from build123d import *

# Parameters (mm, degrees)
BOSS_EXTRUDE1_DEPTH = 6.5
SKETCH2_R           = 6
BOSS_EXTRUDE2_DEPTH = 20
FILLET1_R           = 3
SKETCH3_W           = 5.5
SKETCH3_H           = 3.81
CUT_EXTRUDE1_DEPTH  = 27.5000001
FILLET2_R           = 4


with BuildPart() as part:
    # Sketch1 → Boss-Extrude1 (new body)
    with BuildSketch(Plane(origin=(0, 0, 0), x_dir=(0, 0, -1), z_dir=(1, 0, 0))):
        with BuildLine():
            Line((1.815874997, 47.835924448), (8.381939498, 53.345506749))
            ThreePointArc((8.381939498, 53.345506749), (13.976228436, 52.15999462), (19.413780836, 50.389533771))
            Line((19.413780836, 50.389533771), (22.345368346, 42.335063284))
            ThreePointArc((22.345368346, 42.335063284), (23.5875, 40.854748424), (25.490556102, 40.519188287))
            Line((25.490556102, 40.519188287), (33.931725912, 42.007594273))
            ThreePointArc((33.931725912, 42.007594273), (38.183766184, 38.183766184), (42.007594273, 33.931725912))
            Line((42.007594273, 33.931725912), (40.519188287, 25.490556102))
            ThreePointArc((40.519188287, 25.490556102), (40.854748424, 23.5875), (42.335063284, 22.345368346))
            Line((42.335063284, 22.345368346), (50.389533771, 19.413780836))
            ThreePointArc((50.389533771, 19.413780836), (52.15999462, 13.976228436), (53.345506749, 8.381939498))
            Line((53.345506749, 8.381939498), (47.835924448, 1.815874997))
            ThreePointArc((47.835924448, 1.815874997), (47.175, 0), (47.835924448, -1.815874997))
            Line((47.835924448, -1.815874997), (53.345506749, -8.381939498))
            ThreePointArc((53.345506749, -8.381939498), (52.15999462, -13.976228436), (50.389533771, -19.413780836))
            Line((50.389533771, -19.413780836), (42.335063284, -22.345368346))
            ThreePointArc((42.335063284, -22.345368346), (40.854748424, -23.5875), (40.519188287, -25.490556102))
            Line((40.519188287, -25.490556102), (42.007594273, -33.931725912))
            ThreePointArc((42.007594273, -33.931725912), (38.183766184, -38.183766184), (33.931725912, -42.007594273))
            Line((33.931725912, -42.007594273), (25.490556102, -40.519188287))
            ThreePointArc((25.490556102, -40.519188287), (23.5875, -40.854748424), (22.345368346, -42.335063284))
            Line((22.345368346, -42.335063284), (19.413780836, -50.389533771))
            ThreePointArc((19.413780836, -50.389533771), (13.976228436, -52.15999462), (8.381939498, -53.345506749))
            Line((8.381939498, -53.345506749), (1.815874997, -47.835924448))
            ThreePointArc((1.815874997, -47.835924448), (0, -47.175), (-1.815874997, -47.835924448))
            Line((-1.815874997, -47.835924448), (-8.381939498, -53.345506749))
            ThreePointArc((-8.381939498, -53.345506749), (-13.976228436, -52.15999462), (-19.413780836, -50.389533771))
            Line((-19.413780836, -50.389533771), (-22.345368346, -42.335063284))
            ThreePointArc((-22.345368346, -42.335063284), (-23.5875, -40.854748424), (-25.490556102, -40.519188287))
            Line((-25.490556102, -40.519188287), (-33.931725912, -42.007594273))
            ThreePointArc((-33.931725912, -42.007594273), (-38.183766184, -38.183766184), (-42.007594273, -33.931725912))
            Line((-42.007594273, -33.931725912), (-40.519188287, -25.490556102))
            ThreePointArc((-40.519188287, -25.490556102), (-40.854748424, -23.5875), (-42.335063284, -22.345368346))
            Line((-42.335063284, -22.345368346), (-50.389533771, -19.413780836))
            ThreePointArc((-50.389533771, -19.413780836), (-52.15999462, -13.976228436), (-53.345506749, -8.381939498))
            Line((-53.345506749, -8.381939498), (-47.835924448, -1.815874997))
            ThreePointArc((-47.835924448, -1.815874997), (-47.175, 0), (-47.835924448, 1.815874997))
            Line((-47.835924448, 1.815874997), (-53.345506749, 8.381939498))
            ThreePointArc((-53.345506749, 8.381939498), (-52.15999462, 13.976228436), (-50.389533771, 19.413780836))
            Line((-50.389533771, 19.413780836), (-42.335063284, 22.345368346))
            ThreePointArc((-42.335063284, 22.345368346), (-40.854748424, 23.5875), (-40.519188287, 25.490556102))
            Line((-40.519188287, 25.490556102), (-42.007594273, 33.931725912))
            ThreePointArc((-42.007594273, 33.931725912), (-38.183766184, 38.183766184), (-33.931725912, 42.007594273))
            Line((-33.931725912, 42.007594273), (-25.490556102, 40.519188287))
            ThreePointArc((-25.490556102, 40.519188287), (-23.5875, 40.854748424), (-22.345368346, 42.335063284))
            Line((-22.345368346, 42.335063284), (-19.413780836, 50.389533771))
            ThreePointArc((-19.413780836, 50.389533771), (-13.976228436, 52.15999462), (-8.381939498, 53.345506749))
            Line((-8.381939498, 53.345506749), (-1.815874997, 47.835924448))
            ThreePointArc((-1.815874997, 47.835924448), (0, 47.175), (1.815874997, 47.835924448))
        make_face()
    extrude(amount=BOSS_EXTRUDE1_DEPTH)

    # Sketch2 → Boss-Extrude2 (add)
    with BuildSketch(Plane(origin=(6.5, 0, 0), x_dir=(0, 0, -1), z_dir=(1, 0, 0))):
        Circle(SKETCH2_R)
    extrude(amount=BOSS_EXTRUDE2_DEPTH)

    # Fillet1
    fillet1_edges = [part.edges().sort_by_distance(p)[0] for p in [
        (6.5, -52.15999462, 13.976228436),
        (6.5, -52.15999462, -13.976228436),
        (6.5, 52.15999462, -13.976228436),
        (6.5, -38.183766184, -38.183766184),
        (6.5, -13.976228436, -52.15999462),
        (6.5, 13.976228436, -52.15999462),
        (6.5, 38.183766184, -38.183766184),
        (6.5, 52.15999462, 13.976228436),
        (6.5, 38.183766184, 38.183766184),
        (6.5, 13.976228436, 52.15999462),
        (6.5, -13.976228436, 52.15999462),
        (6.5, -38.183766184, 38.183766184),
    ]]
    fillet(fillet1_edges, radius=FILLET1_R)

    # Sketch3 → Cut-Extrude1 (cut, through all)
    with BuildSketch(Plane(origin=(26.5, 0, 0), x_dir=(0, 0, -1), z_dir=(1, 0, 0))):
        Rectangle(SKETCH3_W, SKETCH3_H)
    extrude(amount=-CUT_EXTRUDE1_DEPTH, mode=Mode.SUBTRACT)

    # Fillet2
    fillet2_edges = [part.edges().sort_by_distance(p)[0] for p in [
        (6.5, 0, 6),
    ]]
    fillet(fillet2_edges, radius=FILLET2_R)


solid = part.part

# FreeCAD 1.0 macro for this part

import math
import FreeCAD as App
import Part
import Sketcher
from FreeCAD import Vector
Q = App.Units.Quantity


def edges_at(feature, points):
    """Names of the edges that pass closest to the given points."""
    edges = feature.Shape.Edges
    near = lambda p: min(range(len(edges)), key=lambda i: edges[i].distToShape(Part.Vertex(*p))[0])
    return sorted({f"Edge{near(p) + 1}" for p in points})


def add_polygon(sketch, points):
    """Adds a closed chain of lines whose ends are joined by coincident constraints."""
    first, n = sketch.GeometryCount, len(points)
    for a, b in zip(points, points[1:] + points[:1]):
        sketch.addGeometry(Part.LineSegment(App.Vector(*a, 0), App.Vector(*b, 0)), False)
    for i in range(n):
        sketch.addConstraint(Sketcher.Constraint("Coincident", first + i, 2, first + (i + 1) % n, 1))

doc = App.newDocument("Part")
body = doc.addObject("PartDesign::Body", "Body")

sketch1 = body.newObject("Sketcher::SketchObject", "Sketch")
sketch1.AttachmentSupport = (doc.getObject("YZ_Plane"), [""])
sketch1.MapMode = "FlatFace"
sketch1.addGeometry([
    Part.LineSegment(Vector(53.3, -8.4, 0), Vector(47.8, -1.8, 0)),
    Part.ArcOfCircle(Part.Circle(Vector(50, 0, 0), Vector(0, 0, 1), 2.8), math.radians(140), math.radians(220)),
    Part.LineSegment(Vector(47.8, 1.8, 0), Vector(53.3, 8.4, 0)),
    Part.ArcOfCircle(Part.Circle(Vector(0, 0, 0), Vector(0, 0, 1), 54), math.radians(8.93), math.radians(21.07)),
    Part.LineSegment(Vector(50.4, 19.4, 0), Vector(42.3, 22.3, 0)),
    Part.ArcOfCircle(Part.Circle(Vector(43.3, 25, 0), Vector(0, 0, 1), 2.8), math.radians(170), math.radians(250)),
    Part.LineSegment(Vector(40.5, 25.5, 0), Vector(42, 33.9, 0)),
    Part.ArcOfCircle(Part.Circle(Vector(0, 0, 0), Vector(0, 0, 1), 54), math.radians(38.93), math.radians(51.07)),
    Part.LineSegment(Vector(33.9, 42, 0), Vector(25.5, 40.5, 0)),
    Part.ArcOfCircle(Part.Circle(Vector(25, 43.3, 0), Vector(0, 0, 1), 2.8), math.radians(-160), math.radians(-80)),
    Part.LineSegment(Vector(22.3, 42.3, 0), Vector(19.4, 50.4, 0)),
    Part.ArcOfCircle(Part.Circle(Vector(0, 0, 0), Vector(0, 0, 1), 54), math.radians(68.93), math.radians(81.07)),
    Part.LineSegment(Vector(8.4, 53.3, 0), Vector(1.8, 47.8, 0)),
    Part.ArcOfCircle(Part.Circle(Vector(0, 50, 0), Vector(0, 0, 1), 2.8), math.radians(-130), math.radians(-50)),
    Part.LineSegment(Vector(-1.8, 47.8, 0), Vector(-8.4, 53.3, 0)),
    Part.ArcOfCircle(Part.Circle(Vector(0, 0, 0), Vector(0, 0, 1), 54), math.radians(98.93), math.radians(111.07)),
    Part.LineSegment(Vector(-19.4, 50.4, 0), Vector(-22.3, 42.3, 0)),
    Part.ArcOfCircle(Part.Circle(Vector(-25, 43.3, 0), Vector(0, 0, 1), 2.8), math.radians(-100), math.radians(-20)),
    Part.LineSegment(Vector(-25.5, 40.5, 0), Vector(-33.9, 42, 0)),
    Part.ArcOfCircle(Part.Circle(Vector(0, 0, 0), Vector(0, 0, 1), 54), math.radians(128.93), math.radians(141.07)),
    Part.LineSegment(Vector(-42, 33.9, 0), Vector(-40.5, 25.5, 0)),
    Part.ArcOfCircle(Part.Circle(Vector(-43.3, 25, 0), Vector(0, 0, 1), 2.8), math.radians(-70), math.radians(10)),
    Part.LineSegment(Vector(-42.3, 22.3, 0), Vector(-50.4, 19.4, 0)),
    Part.ArcOfCircle(Part.Circle(Vector(0, 0, 0), Vector(0, 0, 1), 54), math.radians(158.93), math.radians(171.07)),
    Part.LineSegment(Vector(-53.3, 8.4, 0), Vector(-47.8, 1.8, 0)),
    Part.ArcOfCircle(Part.Circle(Vector(-50, 0, 0), Vector(0, 0, 1), 2.8), math.radians(-40), math.radians(40)),
    Part.LineSegment(Vector(-47.8, -1.8, 0), Vector(-53.3, -8.4, 0)),
    Part.ArcOfCircle(Part.Circle(Vector(0, 0, 0), Vector(0, 0, 1), 54), math.radians(-171.07), math.radians(-158.93)),
    Part.LineSegment(Vector(-50.4, -19.4, 0), Vector(-42.3, -22.3, 0)),
    Part.ArcOfCircle(Part.Circle(Vector(-43.3, -25, 0), Vector(0, 0, 1), 2.8), math.radians(-10), math.radians(70)),
    Part.LineSegment(Vector(-40.5, -25.5, 0), Vector(-42, -33.9, 0)),
    Part.ArcOfCircle(Part.Circle(Vector(0, 0, 0), Vector(0, 0, 1), 54), math.radians(-141.07), math.radians(-128.93)),
    Part.LineSegment(Vector(-33.9, -42, 0), Vector(-25.5, -40.5, 0)),
    Part.ArcOfCircle(Part.Circle(Vector(-25, -43.3, 0), Vector(0, 0, 1), 2.8), math.radians(20), math.radians(100)),
    Part.LineSegment(Vector(-22.3, -42.3, 0), Vector(-19.4, -50.4, 0)),
    Part.ArcOfCircle(Part.Circle(Vector(0, 0, 0), Vector(0, 0, 1), 54), math.radians(-111.07), math.radians(-98.93)),
    Part.LineSegment(Vector(-8.4, -53.3, 0), Vector(-1.8, -47.8, 0)),
    Part.ArcOfCircle(Part.Circle(Vector(0, -50, 0), Vector(0, 0, 1), 2.8), math.radians(50), math.radians(130)),
    Part.LineSegment(Vector(1.8, -47.8, 0), Vector(8.4, -53.3, 0)),
    Part.ArcOfCircle(Part.Circle(Vector(0, 0, 0), Vector(0, 0, 1), 54), math.radians(-81.07), math.radians(-68.93)),
    Part.LineSegment(Vector(19.4, -50.4, 0), Vector(22.3, -42.3, 0)),
    Part.ArcOfCircle(Part.Circle(Vector(25, -43.3, 0), Vector(0, 0, 1), 2.8), math.radians(80), math.radians(160)),
    Part.LineSegment(Vector(25.5, -40.5, 0), Vector(33.9, -42, 0)),
    Part.ArcOfCircle(Part.Circle(Vector(0, 0, 0), Vector(0, 0, 1), 54), math.radians(-51.07), math.radians(-38.93)),
    Part.LineSegment(Vector(42, -33.9, 0), Vector(40.5, -25.5, 0)),
    Part.ArcOfCircle(Part.Circle(Vector(43.3, -25, 0), Vector(0, 0, 1), 2.8), math.radians(110), math.radians(190)),
    Part.LineSegment(Vector(42.3, -22.3, 0), Vector(50.4, -19.4, 0)),
    Part.ArcOfCircle(Part.Circle(Vector(0, 0, 0), Vector(0, 0, 1), 54), math.radians(-21.07), math.radians(-8.93)),
], False)
sketch1.addConstraint([
    Sketcher.Constraint("Tangent", 0, 2, 1, 2),
    Sketcher.Constraint("Tangent", 1, 1, 2, 1),
    Sketcher.Constraint("Coincident", 2, 2, 3, 1),
    Sketcher.Constraint("Coincident", 3, 2, 4, 1),
    Sketcher.Constraint("Tangent", 4, 2, 5, 2),
    Sketcher.Constraint("Tangent", 5, 1, 6, 1),
    Sketcher.Constraint("Coincident", 6, 2, 7, 1),
    Sketcher.Constraint("Coincident", 7, 2, 8, 1),
    Sketcher.Constraint("Tangent", 8, 2, 9, 2),
    Sketcher.Constraint("Tangent", 9, 1, 10, 1),
    Sketcher.Constraint("Coincident", 10, 2, 11, 1),
    Sketcher.Constraint("Coincident", 11, 2, 12, 1),
    Sketcher.Constraint("Tangent", 12, 2, 13, 2),
    Sketcher.Constraint("Tangent", 13, 1, 14, 1),
    Sketcher.Constraint("Coincident", 14, 2, 15, 1),
    Sketcher.Constraint("Coincident", 15, 2, 16, 1),
    Sketcher.Constraint("Tangent", 16, 2, 17, 2),
    Sketcher.Constraint("Tangent", 17, 1, 18, 1),
    Sketcher.Constraint("Coincident", 18, 2, 19, 1),
    Sketcher.Constraint("Coincident", 19, 2, 20, 1),
    Sketcher.Constraint("Tangent", 20, 2, 21, 2),
    Sketcher.Constraint("Tangent", 21, 1, 22, 1),
    Sketcher.Constraint("Coincident", 22, 2, 23, 1),
    Sketcher.Constraint("Coincident", 23, 2, 24, 1),
    Sketcher.Constraint("Tangent", 24, 2, 25, 2),
    Sketcher.Constraint("Tangent", 25, 1, 26, 1),
    Sketcher.Constraint("Coincident", 26, 2, 27, 1),
    Sketcher.Constraint("Coincident", 27, 2, 28, 1),
    Sketcher.Constraint("Tangent", 28, 2, 29, 2),
    Sketcher.Constraint("Tangent", 29, 1, 30, 1),
    Sketcher.Constraint("Coincident", 30, 2, 31, 1),
    Sketcher.Constraint("Coincident", 31, 2, 32, 1),
    Sketcher.Constraint("Tangent", 32, 2, 33, 2),
    Sketcher.Constraint("Tangent", 33, 1, 34, 1),
    Sketcher.Constraint("Coincident", 34, 2, 35, 1),
    Sketcher.Constraint("Coincident", 35, 2, 36, 1),
    Sketcher.Constraint("Tangent", 36, 2, 37, 2),
    Sketcher.Constraint("Tangent", 37, 1, 38, 1),
    Sketcher.Constraint("Coincident", 38, 2, 39, 1),
    Sketcher.Constraint("Coincident", 39, 2, 40, 1),
    Sketcher.Constraint("Tangent", 40, 2, 41, 2),
    Sketcher.Constraint("Tangent", 41, 1, 42, 1),
    Sketcher.Constraint("Coincident", 42, 2, 43, 1),
    Sketcher.Constraint("Coincident", 43, 2, 44, 1),
    Sketcher.Constraint("Tangent", 44, 2, 45, 2),
    Sketcher.Constraint("Tangent", 45, 1, 46, 1),
    Sketcher.Constraint("Coincident", 46, 2, 47, 1),
    Sketcher.Constraint("Coincident", 47, 2, 0, 1),
    Sketcher.Constraint("Coincident", 3, 3, -1, 1),
    Sketcher.Constraint("Coincident", 7, 3, -1, 1),
    Sketcher.Constraint("Coincident", 11, 3, -1, 1),
    Sketcher.Constraint("Coincident", 15, 3, -1, 1),
    Sketcher.Constraint("Coincident", 19, 3, -1, 1),
    Sketcher.Constraint("Coincident", 23, 3, -1, 1),
    Sketcher.Constraint("Coincident", 27, 3, -1, 1),
    Sketcher.Constraint("Coincident", 31, 3, -1, 1),
    Sketcher.Constraint("Coincident", 35, 3, -1, 1),
    Sketcher.Constraint("Coincident", 39, 3, -1, 1),
    Sketcher.Constraint("Coincident", 43, 3, -1, 1),
    Sketcher.Constraint("Coincident", 47, 3, -1, 1),
    Sketcher.Constraint("Equal", 1, 5),
    Sketcher.Constraint("Equal", 3, 7),
    Sketcher.Constraint("Equal", 5, 9),
    Sketcher.Constraint("Equal", 7, 11),
    Sketcher.Constraint("Equal", 9, 13),
    Sketcher.Constraint("Equal", 11, 15),
    Sketcher.Constraint("Equal", 13, 17),
    Sketcher.Constraint("Equal", 15, 19),
    Sketcher.Constraint("Equal", 17, 21),
    Sketcher.Constraint("Equal", 19, 23),
    Sketcher.Constraint("Equal", 21, 25),
    Sketcher.Constraint("Equal", 23, 27),
    Sketcher.Constraint("Equal", 25, 29),
    Sketcher.Constraint("Equal", 27, 31),
    Sketcher.Constraint("Equal", 29, 33),
    Sketcher.Constraint("Equal", 31, 35),
    Sketcher.Constraint("Equal", 33, 37),
    Sketcher.Constraint("Equal", 35, 39),
    Sketcher.Constraint("Equal", 37, 41),
    Sketcher.Constraint("Equal", 39, 43),
    Sketcher.Constraint("Equal", 41, 45),
    Sketcher.Constraint("Equal", 43, 47),
    Sketcher.Constraint("Symmetric", 1, 3, 25, 3, -1, 1),
    Sketcher.Constraint("Symmetric", 5, 3, 29, 3, -1, 1),
    Sketcher.Constraint("Symmetric", 9, 3, 33, 3, -1, 1),
    Sketcher.Constraint("Symmetric", 13, 3, 37, 3, -1, 1),
    Sketcher.Constraint("Symmetric", 17, 3, 41, 3, -1, 1),
    Sketcher.Constraint("Symmetric", 21, 3, 45, 3, -1, 1),
    Sketcher.Constraint("Symmetric", 9, 3, 17, 3, -2),
    Sketcher.Constraint("Symmetric", 5, 3, 21, 3, -2),
    Sketcher.Constraint("Symmetric", 12, 2, 13, 1, -2),
    Sketcher.Constraint("Symmetric", 1, 1, 24, 2, -2),
    Sketcher.Constraint("Perpendicular", 0, 12),
    Sketcher.Constraint("Perpendicular", 2, 14),
    Sketcher.Constraint("Perpendicular", 4, 16),
    Sketcher.Constraint("Perpendicular", 6, 18),
    Sketcher.Constraint("Perpendicular", 8, 20),
    Sketcher.Constraint("Perpendicular", 10, 22),
    Sketcher.Constraint("Perpendicular", 14, 26),
    Sketcher.Constraint("Perpendicular", 16, 28),
    Sketcher.Constraint("Perpendicular", 18, 30),
    Sketcher.Constraint("Perpendicular", 20, 32),
    Sketcher.Constraint("Perpendicular", 22, 34),
    Sketcher.Constraint("Perpendicular", 24, 36),
    Sketcher.Constraint("Perpendicular", 26, 38),
    Sketcher.Constraint("Perpendicular", 28, 40),
    Sketcher.Constraint("Perpendicular", 30, 42),
    Sketcher.Constraint("Perpendicular", 32, 44),
    Sketcher.Constraint("Perpendicular", 34, 46),
    Sketcher.Constraint("Horizontal", 10, 2, 15, 2),
    Sketcher.Constraint("Horizontal", 8, 2, 17, 1),
    Sketcher.Constraint("Equal", 2, 4),
    Sketcher.Constraint("Equal", 4, 6),
    Sketcher.Constraint("Equal", 6, 8),
    Sketcher.Constraint("Equal", 8, 10),
    Sketcher.Constraint("Equal", 10, 12),
    Sketcher.Constraint("Radius", 3, 54.0),
    Sketcher.Constraint("Angle", 0, Q("130 deg")),
    Sketcher.Constraint("Angle", 4, Q("160 deg")),
    Sketcher.Constraint("Angle", 6, Q("80 deg")),
    Sketcher.Constraint("DistanceX", -1, 1, 1, 3, 50.0),
    Sketcher.Constraint("Radius", 1, 2.825),
])
pad1 = body.newObject("PartDesign::Pad", "Pad")
pad1.Profile = sketch1
pad1.Length = 6.5

sketch2 = body.newObject("Sketcher::SketchObject", "Sketch001")
sketch2.AttachmentSupport = (doc.getObject("YZ_Plane"), [""])
sketch2.MapMode = "FlatFace"
sketch2.AttachmentOffset = App.Placement(Vector(0, 0, 6.5), App.Rotation())
sketch2.addGeometry(Part.Circle(Vector(0, 0, 0), Vector(0, 0, 1), 6), False)
sketch2.addConstraint([
    Sketcher.Constraint("Coincident", 0, 3, -1, 1),
    Sketcher.Constraint("Diameter", 0, 12.0),
])
pad2 = body.newObject("PartDesign::Pad", "Pad001")
pad2.Profile = sketch2
pad2.Length = 20
doc.recompute()

fillet = body.newObject("PartDesign::Fillet", "Fillet")
fillet.Base = (pad2, edges_at(pad2, [
    (6.5, -52.16, 13.976),
    (6.5, -52.16, -13.976),
    (6.5, 52.16, -13.976),
    (6.5, -38.184, -38.184),
    (6.5, -13.976, -52.16),
    (6.5, 13.976, -52.16),
    (6.5, 38.184, -38.184),
    (6.5, 52.16, 13.976),
    (6.5, 38.184, 38.184),
    (6.5, 13.976, 52.16),
    (6.5, -13.976, 52.16),
    (6.5, -38.184, 38.184),
]))
fillet.Radius = 3

sketch3 = body.newObject("Sketcher::SketchObject", "Sketch002")
sketch3.AttachmentSupport = (doc.getObject("YZ_Plane"), [""])
sketch3.MapMode = "FlatFace"
sketch3.AttachmentOffset = App.Placement(Vector(0, 0, 26.5), App.Rotation())
add_polygon(sketch3, [(1.9, 2.8), (-1.9, 2.8), (-1.9, -2.8), (1.9, -2.8)])
sketch3.addConstraint([
    Sketcher.Constraint("Horizontal", 0),
    Sketcher.Constraint("Vertical", 1),
    Sketcher.Constraint("Horizontal", 2),
    Sketcher.Constraint("Vertical", 3),
    Sketcher.Constraint("Symmetric", 0, 2, 2, 2, -1, 1),
    Sketcher.Constraint("DistanceY", 1, 2, 1, 1, 5.5),
    Sketcher.Constraint("DistanceX", 0, 2, 0, 1, 3.81),
])
pocket1 = body.newObject("PartDesign::Pocket", "Pocket")
pocket1.Profile = sketch3
pocket1.Type = "ThroughAll"
doc.recompute()

fillet2 = body.newObject("PartDesign::Fillet", "Fillet001")
fillet2.Base = (pocket1, edges_at(pocket1, [(6.5, 0, 6)]))
fillet2.Radius = 4

doc.recompute()
